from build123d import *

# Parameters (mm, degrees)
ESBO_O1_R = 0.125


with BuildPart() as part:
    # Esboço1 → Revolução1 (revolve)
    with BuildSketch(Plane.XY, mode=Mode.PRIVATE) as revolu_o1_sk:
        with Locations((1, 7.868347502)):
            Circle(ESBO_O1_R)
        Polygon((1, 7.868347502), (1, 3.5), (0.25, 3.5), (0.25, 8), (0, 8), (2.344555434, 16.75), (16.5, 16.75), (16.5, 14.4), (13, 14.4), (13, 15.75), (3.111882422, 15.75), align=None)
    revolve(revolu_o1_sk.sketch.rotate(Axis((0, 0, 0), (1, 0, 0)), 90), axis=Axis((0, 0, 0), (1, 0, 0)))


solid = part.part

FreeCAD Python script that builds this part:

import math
import FreeCAD as App
import Part
import Sketcher
Q = App.Units.Quantity

doc = App.newDocument("Part")
body = doc.addObject("PartDesign::Body", "Body")

sketch1 = body.newObject("Sketcher::SketchObject", "Sketch")
sketch1.AttachmentSupport = (doc.getObject("XY_Plane"), [""])
sketch1.MapMode = "FlatFace"
sketch1.addGeometry(Part.ArcOfCircle(Part.Circle(App.Vector(1, 7.87, 0), App.Vector(0, 0, 1), 0.12), math.radians(-90), math.radians(75)), False)
sketch1.addGeometry(Part.LineSegment(App.Vector(1.03, 7.99, 0), App.Vector(3.11, 15.75, 0)), False)
sketch1.addGeometry(Part.LineSegment(App.Vector(3.11, 15.75, 0), App.Vector(13, 15.75, 0)), False)
sketch1.addGeometry(Part.LineSegment(App.Vector(13, 15.75, 0), App.Vector(13, 14.4, 0)), False)
sketch1.addGeometry(Part.LineSegment(App.Vector(13, 14.4, 0), App.Vector(16.5, 14.4, 0)), False)
sketch1.addGeometry(Part.LineSegment(App.Vector(16.5, 14.4, 0), App.Vector(16.5, 16.75, 0)), False)
sketch1.addGeometry(Part.LineSegment(App.Vector(16.5, 16.75, 0), App.Vector(2.34, 16.75, 0)), False)
sketch1.addGeometry(Part.LineSegment(App.Vector(2.34, 16.75, 0), App.Vector(0, 8, 0)), False)
sketch1.addGeometry(Part.LineSegment(App.Vector(0, 8, 0), App.Vector(0.25, 8, 0)), False)
sketch1.addGeometry(Part.LineSegment(App.Vector(0.25, 8, 0), App.Vector(0.25, 3.5, 0)), False)
sketch1.addGeometry(Part.LineSegment(App.Vector(0.25, 3.5, 0), App.Vector(1, 3.5, 0)), False)
sketch1.addGeometry(Part.LineSegment(App.Vector(1, 3.5, 0), App.Vector(1, 7.74, 0)), False)
sketch1.addConstraint(Sketcher.Constraint("Coincident", 0, 2, 1, 1))
sketch1.addConstraint(Sketcher.Constraint("Coincident", 1, 2, 2, 1))
sketch1.addConstraint(Sketcher.Constraint("Coincident", 2, 2, 3, 1))
sketch1.addConstraint(Sketcher.Constraint("Coincident", 3, 2, 4, 1))
sketch1.addConstraint(Sketcher.Constraint("Coincident", 4, 2, 5, 1))
sketch1.addConstraint(Sketcher.Constraint("Coincident", 5, 2, 6, 1))
sketch1.addConstraint(Sketcher.Constraint("Coincident", 6, 2, 7, 1))
sketch1.addConstraint(Sketcher.Constraint("Coincident", 7, 2, 8, 1))
sketch1.addConstraint(Sketcher.Constraint("Coincident", 8, 2, 9, 1))
sketch1.addConstraint(Sketcher.Constraint("Coincident", 9, 2, 10, 1))
sketch1.addConstraint(Sketcher.Constraint("Coincident", 10, 2, 11, 1))
sketch1.addConstraint(Sketcher.Constraint("Coincident", 11, 2, 0, 1))
sketch1.addConstraint(Sketcher.Constraint("Horizontal", 2))
sketch1.addConstraint(Sketcher.Constraint("Vertical", 3))
sketch1.addConstraint(Sketcher.Constraint("Horizontal", 4))
sketch1.addConstraint(Sketcher.Constraint("Vertical", 5))
sketch1.addConstraint(Sketcher.Constraint("Horizontal", 6))
sketch1.addConstraint(Sketcher.Constraint("Horizontal", 8))
sketch1.addConstraint(Sketcher.Constraint("Vertical", 9))
sketch1.addConstraint(Sketcher.Constraint("Horizontal", 10))
sketch1.addConstraint(Sketcher.Constraint("Vertical", 11))
sketch1.addConstraint(Sketcher.Constraint("PointOnObject", 7, 2, -2))
sketch1.addConstraint(Sketcher.Constraint("Parallel", 1, 7))
sketch1.addConstraint(Sketcher.Constraint("Vertical", 0, 3, 10, 2))
sketch1.addConstraint(Sketcher.Constraint("Angle", 1, Q("75 deg")))
sketch1.addConstraint(Sketcher.Constraint("DistanceX", 4, 1, 4, 2, Q("3.5 mm")))
sketch1.addConstraint(Sketcher.Constraint("DistanceY", 9, 2, 9, 1, Q("4.5 mm")))
sketch1.addConstraint(Sketcher.Constraint("DistanceX", -1, 1, 0, 3, Q("1 mm")))
sketch1.addConstraint(Sketcher.Constraint("DistanceX", -1, 1, 2, 2, Q("13 mm")))
sketch1.addConstraint(Sketcher.Constraint("DistanceY", -1, 1, 7, 2, Q("8 mm")))
sketch1.addConstraint(Sketcher.Constraint("Radius", 0, Q("0.125 mm")))
sketch1.addConstraint(Sketcher.Constraint("DistanceY", 2, 2, 5, 2, Q("1 mm")))
sketch1.addConstraint(Sketcher.Constraint("DistanceX", 8, 1, 8, 2, Q("0.25 mm")))
sketch1.addConstraint(Sketcher.Constraint("DistanceY", 3, 2, 3, 1, Q("1.35 mm")))
sketch1.addConstraint(Sketcher.Constraint("DistanceY", -1, 1, 3, 2, Q("14.4 mm")))
sketch1.addConstraint(Sketcher.Constraint("DistanceX", 2, 1, 2, 2, Q("9.888118 mm")))
sketch1.addConstraint(Sketcher.Constraint("DistanceY", 11, 1, 11, 2, Q("4.243348 mm")))
revolution = body.newObject("PartDesign::Revolution", "Revolution")
revolution.Profile = sketch1
revolution.ReferenceAxis = (sketch1, ["H_Axis"])
revolution.Angle = 360

doc.recompute()
